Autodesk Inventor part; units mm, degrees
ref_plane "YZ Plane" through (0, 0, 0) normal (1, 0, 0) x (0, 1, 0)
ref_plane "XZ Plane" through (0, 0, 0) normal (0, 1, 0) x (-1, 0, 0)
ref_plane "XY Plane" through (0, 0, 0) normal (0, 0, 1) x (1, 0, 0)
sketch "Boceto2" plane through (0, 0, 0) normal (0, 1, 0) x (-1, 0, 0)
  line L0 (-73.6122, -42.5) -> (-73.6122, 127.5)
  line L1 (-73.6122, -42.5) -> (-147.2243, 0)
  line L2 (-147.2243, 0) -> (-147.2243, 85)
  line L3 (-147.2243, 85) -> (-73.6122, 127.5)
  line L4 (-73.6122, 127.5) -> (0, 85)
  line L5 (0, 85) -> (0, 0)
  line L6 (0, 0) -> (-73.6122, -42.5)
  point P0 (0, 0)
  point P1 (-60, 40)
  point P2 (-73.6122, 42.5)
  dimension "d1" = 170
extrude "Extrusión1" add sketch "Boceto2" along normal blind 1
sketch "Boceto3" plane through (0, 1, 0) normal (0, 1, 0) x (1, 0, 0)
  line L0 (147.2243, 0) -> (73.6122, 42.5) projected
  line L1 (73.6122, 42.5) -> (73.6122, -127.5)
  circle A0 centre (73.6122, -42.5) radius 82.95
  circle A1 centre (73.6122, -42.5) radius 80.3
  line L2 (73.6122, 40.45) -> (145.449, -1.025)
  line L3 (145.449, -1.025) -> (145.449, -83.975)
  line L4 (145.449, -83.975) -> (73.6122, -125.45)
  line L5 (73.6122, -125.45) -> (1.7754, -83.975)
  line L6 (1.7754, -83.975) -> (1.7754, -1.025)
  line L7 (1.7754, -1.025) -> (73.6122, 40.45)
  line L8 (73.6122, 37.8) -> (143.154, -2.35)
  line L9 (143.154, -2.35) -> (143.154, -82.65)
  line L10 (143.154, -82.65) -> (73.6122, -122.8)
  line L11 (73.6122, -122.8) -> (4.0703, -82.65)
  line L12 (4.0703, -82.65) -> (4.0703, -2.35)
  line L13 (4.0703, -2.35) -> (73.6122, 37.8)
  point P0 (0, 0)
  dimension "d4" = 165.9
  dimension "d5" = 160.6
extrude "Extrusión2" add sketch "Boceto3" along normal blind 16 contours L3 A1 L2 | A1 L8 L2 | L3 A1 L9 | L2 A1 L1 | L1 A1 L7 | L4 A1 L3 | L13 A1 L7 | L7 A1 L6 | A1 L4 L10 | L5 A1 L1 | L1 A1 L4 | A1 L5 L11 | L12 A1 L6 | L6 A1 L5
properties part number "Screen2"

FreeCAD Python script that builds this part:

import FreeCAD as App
import Part
import Sketcher

V = App.Vector
Q = App.Units.Quantity


def add_polygon(sketch, points):
    """Adds a closed chain of lines whose ends are joined by coincident constraints."""
    first, n = sketch.GeometryCount, len(points)
    for a, b in zip(points, points[1:] + points[:1]):
        sketch.addGeometry(Part.LineSegment(App.Vector(*a, 0), App.Vector(*b, 0)), False)
    for i in range(n):
        sketch.addConstraint(Sketcher.Constraint("Coincident", first + i, 2, first + (i + 1) % n, 1))

doc = App.newDocument("Part")
body = doc.addObject("PartDesign::Body", "Body")

sketch1 = doc.addObject("Sketcher::SketchObject", "Sketch")
body.addObject(sketch1)
sketch1.AttachmentSupport = (doc.XZ_Plane, [""])
sketch1.MapMode = "FlatFace"
add_polygon(sketch1, [(147, 0), (74, -42), (0, 0), (0, 85), (74, 128), (147, 85)])
sketch1.addConstraint(Sketcher.Constraint("Vertical", 2))
sketch1.addConstraint(Sketcher.Constraint("Vertical", 5))
sketch1.addConstraint(Sketcher.Constraint("Coincident", 1, 2, -1, 1))
sketch1.addConstraint(Sketcher.Constraint("PointOnObject", 5, 2, -1))
sketch1.addConstraint(Sketcher.Constraint("Parallel", 0, 3))
sketch1.addConstraint(Sketcher.Constraint("Parallel", 1, 4))
sketch1.addConstraint(Sketcher.Constraint("Horizontal", 2, 2, 4, 2))
sketch1.addConstraint(Sketcher.Constraint("Vertical", 0, 2, 3, 2))
sketch1.addConstraint(Sketcher.Constraint("DistanceY", 0, 2, 3, 2, 170.0))
sketch1.addConstraint(Sketcher.Constraint("DistanceY", 2, 1, 2, 2, 85.0))
sketch1.addConstraint(Sketcher.Constraint("Angle", 0, Q("-150 deg")))
pad1 = doc.addObject("PartDesign::Pad", "Pad")
body.addObject(pad1)
pad1.Profile = sketch1
pad1.Length = 1
pad1.Reversed = True

sketch2 = doc.addObject("Sketcher::SketchObject", "Sketch001")
body.addObject(sketch2)
sketch2.AttachmentSupport = (doc.XZ_Plane, [""])
sketch2.MapMode = "FlatFace"
sketch2.AttachmentOffset = App.Placement(V(0, 0, -1), App.Rotation())
add_polygon(sketch2, [(145, 1), (74, -40), (2, 1), (2, 84), (74, 125), (145, 84)])
add_polygon(sketch2, [(143, 2), (143, 83), (74, 123), (4, 83), (4, 2), (74, -38)])
sketch2.addConstraint(Sketcher.Constraint("Vertical", 2))
sketch2.addConstraint(Sketcher.Constraint("Vertical", 5))
sketch2.addConstraint(Sketcher.Constraint("Vertical", 6))
sketch2.addConstraint(Sketcher.Constraint("Vertical", 9))
sketch2.addConstraint(Sketcher.Constraint("Parallel", 0, 3))
sketch2.addConstraint(Sketcher.Constraint("Parallel", 1, 4))
sketch2.addConstraint(Sketcher.Constraint("Parallel", 4, 7))
sketch2.addConstraint(Sketcher.Constraint("Parallel", 3, 8))
sketch2.addConstraint(Sketcher.Constraint("Parallel", 7, 10))
sketch2.addConstraint(Sketcher.Constraint("Parallel", 8, 11))
sketch2.addConstraint(Sketcher.Constraint("Horizontal", 2, 2, 4, 2))
sketch2.addConstraint(Sketcher.Constraint("Horizontal", 1, 2, 5, 2))
sketch2.addConstraint(Sketcher.Constraint("Horizontal", 6, 2, 8, 2))
sketch2.addConstraint(Sketcher.Constraint("Horizontal", 9, 2, 11, 2))
sketch2.addConstraint(Sketcher.Constraint("Vertical", 0, 2, 3, 2))
sketch2.addConstraint(Sketcher.Constraint("Vertical", 3, 2, 7, 2))
sketch2.addConstraint(Sketcher.Constraint("DistanceY", 0, 2, 3, 2, 165.9))
sketch2.addConstraint(Sketcher.Constraint("Angle", 0, Q("-150 deg")))
sketch2.addConstraint(Sketcher.Constraint("DistanceY", 6, 1, 6, 2, 80.3))
sketch2.addConstraint(Sketcher.Constraint("Distance", 7, 80.3))
sketch2.addConstraint(Sketcher.Constraint("DistanceY", 2, 1, 2, 2, 82.95))
sketch2.addConstraint(Sketcher.Constraint("DistanceY", -1, 1, 7, 2, 122.8))
sketch2.addConstraint(Sketcher.Constraint("DistanceY", 6, 2, 3, 2, 42.8))
sketch2.addConstraint(Sketcher.Constraint("DistanceX", -1, 1, 4, 2, 145.449))
pad2 = doc.addObject("PartDesign::Pad", "Pad001")
body.addObject(pad2)
pad2.Profile = sketch2
pad2.Length = 16
pad2.Reversed = True

doc.recompute()
